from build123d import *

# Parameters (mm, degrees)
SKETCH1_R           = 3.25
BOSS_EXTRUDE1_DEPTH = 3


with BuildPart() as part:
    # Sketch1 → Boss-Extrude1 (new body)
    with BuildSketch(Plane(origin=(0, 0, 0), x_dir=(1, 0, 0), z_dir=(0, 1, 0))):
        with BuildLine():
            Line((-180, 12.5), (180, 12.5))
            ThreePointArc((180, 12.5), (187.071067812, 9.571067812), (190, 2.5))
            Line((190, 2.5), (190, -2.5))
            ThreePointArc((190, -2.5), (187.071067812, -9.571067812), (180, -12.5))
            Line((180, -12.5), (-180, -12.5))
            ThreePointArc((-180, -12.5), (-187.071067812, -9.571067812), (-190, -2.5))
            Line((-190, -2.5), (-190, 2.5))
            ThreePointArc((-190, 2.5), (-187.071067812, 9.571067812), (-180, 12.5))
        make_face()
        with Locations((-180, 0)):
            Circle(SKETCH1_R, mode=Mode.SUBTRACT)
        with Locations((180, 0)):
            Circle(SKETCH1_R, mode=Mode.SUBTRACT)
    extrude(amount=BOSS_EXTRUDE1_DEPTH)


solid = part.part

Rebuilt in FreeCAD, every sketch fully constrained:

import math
import FreeCAD as App
import Part
import Sketcher
Q = App.Units.Quantity

doc = App.newDocument("Part")
body = doc.addObject("PartDesign::Body", "Body")

# Sketch on XZ plane
sketch1 = body.newObject("Sketcher::SketchObject", "Sketch")
sketch1.AttachmentSupport = (doc.getObject("XZ_Plane"), [""])
sketch1.MapMode = "FlatFace"
sketch1.addGeometry(Part.LineSegment(App.Vector(180, -12.5, 0), App.Vector(-180, -12.5, 0)), False)
sketch1.addGeometry(Part.ArcOfCircle(Part.Circle(App.Vector(-180, -2.5, 0), App.Vector(0, 0, 1), 10), math.radians(180), math.radians(270)), False)
sketch1.addGeometry(Part.LineSegment(App.Vector(-190, -2.5, 0), App.Vector(-190, 2.5, 0)), False)
sketch1.addGeometry(Part.ArcOfCircle(Part.Circle(App.Vector(-180, 2.5, 0), App.Vector(0, 0, 1), 10), math.radians(90), math.radians(180)), False)
sketch1.addGeometry(Part.LineSegment(App.Vector(-180, 12.5, 0), App.Vector(180, 12.5, 0)), False)
sketch1.addGeometry(Part.ArcOfCircle(Part.Circle(App.Vector(180, 2.5, 0), App.Vector(0, 0, 1), 10), math.radians(0), math.radians(90)), False)
sketch1.addGeometry(Part.LineSegment(App.Vector(190, 2.5, 0), App.Vector(190, -2.5, 0)), False)
sketch1.addGeometry(Part.ArcOfCircle(Part.Circle(App.Vector(180, -2.5, 0), App.Vector(0, 0, 1), 10), math.radians(-90), math.radians(0)), False)
sketch1.addGeometry(Part.Circle(App.Vector(180, 0, 0), App.Vector(0, 0, 1), 3.2), False)
sketch1.addGeometry(Part.Circle(App.Vector(-180, 0, 0), App.Vector(0, 0, 1), 3.2), False)
sketch1.addConstraint(Sketcher.Constraint("Tangent", 0, 2, 1, 2))
sketch1.addConstraint(Sketcher.Constraint("Tangent", 1, 1, 2, 1))
sketch1.addConstraint(Sketcher.Constraint("Tangent", 2, 2, 3, 2))
sketch1.addConstraint(Sketcher.Constraint("Tangent", 3, 1, 4, 1))
sketch1.addConstraint(Sketcher.Constraint("Tangent", 4, 2, 5, 2))
sketch1.addConstraint(Sketcher.Constraint("Tangent", 5, 1, 6, 1))
sketch1.addConstraint(Sketcher.Constraint("Tangent", 6, 2, 7, 2))
sketch1.addConstraint(Sketcher.Constraint("Tangent", 7, 1, 0, 1))
sketch1.addConstraint(Sketcher.Constraint("Horizontal", 0))
sketch1.addConstraint(Sketcher.Constraint("Vertical", 2))
sketch1.addConstraint(Sketcher.Constraint("Horizontal", 4))
sketch1.addConstraint(Sketcher.Constraint("Vertical", 6))
sketch1.addConstraint(Sketcher.Constraint("Equal", 1, 3))
sketch1.addConstraint(Sketcher.Constraint("Equal", 3, 5))
sketch1.addConstraint(Sketcher.Constraint("Equal", 5, 7))
sketch1.addConstraint(Sketcher.Constraint("Equal", 8, 9))
sketch1.addConstraint(Sketcher.Constraint("Symmetric", 1, 3, 5, 3, -1, 1))
sketch1.addConstraint(Sketcher.Constraint("Symmetric", 8, 3, 9, 3, -1, 1))
sketch1.addConstraint(Sketcher.Constraint("PointOnObject", 8, 3, -1))
sketch1.addConstraint(Sketcher.Constraint("Vertical", 7, 3, 8, 3))
sketch1.addConstraint(Sketcher.Constraint("Radius", 1, Q("10 mm")))
sketch1.addConstraint(Sketcher.Constraint("Diameter", 8, Q("6.5 mm")))
sketch1.addConstraint(Sketcher.Constraint("DistanceX", 0, 2, 0, 1, Q("360 mm")))
sketch1.addConstraint(Sketcher.Constraint("DistanceY", 2, 1, 2, 2, Q("5 mm")))
pad1 = body.newObject("PartDesign::Pad", "Pad")
pad1.Profile = sketch1
pad1.Length = 3
pad1.Reversed = True

doc.recompute()
